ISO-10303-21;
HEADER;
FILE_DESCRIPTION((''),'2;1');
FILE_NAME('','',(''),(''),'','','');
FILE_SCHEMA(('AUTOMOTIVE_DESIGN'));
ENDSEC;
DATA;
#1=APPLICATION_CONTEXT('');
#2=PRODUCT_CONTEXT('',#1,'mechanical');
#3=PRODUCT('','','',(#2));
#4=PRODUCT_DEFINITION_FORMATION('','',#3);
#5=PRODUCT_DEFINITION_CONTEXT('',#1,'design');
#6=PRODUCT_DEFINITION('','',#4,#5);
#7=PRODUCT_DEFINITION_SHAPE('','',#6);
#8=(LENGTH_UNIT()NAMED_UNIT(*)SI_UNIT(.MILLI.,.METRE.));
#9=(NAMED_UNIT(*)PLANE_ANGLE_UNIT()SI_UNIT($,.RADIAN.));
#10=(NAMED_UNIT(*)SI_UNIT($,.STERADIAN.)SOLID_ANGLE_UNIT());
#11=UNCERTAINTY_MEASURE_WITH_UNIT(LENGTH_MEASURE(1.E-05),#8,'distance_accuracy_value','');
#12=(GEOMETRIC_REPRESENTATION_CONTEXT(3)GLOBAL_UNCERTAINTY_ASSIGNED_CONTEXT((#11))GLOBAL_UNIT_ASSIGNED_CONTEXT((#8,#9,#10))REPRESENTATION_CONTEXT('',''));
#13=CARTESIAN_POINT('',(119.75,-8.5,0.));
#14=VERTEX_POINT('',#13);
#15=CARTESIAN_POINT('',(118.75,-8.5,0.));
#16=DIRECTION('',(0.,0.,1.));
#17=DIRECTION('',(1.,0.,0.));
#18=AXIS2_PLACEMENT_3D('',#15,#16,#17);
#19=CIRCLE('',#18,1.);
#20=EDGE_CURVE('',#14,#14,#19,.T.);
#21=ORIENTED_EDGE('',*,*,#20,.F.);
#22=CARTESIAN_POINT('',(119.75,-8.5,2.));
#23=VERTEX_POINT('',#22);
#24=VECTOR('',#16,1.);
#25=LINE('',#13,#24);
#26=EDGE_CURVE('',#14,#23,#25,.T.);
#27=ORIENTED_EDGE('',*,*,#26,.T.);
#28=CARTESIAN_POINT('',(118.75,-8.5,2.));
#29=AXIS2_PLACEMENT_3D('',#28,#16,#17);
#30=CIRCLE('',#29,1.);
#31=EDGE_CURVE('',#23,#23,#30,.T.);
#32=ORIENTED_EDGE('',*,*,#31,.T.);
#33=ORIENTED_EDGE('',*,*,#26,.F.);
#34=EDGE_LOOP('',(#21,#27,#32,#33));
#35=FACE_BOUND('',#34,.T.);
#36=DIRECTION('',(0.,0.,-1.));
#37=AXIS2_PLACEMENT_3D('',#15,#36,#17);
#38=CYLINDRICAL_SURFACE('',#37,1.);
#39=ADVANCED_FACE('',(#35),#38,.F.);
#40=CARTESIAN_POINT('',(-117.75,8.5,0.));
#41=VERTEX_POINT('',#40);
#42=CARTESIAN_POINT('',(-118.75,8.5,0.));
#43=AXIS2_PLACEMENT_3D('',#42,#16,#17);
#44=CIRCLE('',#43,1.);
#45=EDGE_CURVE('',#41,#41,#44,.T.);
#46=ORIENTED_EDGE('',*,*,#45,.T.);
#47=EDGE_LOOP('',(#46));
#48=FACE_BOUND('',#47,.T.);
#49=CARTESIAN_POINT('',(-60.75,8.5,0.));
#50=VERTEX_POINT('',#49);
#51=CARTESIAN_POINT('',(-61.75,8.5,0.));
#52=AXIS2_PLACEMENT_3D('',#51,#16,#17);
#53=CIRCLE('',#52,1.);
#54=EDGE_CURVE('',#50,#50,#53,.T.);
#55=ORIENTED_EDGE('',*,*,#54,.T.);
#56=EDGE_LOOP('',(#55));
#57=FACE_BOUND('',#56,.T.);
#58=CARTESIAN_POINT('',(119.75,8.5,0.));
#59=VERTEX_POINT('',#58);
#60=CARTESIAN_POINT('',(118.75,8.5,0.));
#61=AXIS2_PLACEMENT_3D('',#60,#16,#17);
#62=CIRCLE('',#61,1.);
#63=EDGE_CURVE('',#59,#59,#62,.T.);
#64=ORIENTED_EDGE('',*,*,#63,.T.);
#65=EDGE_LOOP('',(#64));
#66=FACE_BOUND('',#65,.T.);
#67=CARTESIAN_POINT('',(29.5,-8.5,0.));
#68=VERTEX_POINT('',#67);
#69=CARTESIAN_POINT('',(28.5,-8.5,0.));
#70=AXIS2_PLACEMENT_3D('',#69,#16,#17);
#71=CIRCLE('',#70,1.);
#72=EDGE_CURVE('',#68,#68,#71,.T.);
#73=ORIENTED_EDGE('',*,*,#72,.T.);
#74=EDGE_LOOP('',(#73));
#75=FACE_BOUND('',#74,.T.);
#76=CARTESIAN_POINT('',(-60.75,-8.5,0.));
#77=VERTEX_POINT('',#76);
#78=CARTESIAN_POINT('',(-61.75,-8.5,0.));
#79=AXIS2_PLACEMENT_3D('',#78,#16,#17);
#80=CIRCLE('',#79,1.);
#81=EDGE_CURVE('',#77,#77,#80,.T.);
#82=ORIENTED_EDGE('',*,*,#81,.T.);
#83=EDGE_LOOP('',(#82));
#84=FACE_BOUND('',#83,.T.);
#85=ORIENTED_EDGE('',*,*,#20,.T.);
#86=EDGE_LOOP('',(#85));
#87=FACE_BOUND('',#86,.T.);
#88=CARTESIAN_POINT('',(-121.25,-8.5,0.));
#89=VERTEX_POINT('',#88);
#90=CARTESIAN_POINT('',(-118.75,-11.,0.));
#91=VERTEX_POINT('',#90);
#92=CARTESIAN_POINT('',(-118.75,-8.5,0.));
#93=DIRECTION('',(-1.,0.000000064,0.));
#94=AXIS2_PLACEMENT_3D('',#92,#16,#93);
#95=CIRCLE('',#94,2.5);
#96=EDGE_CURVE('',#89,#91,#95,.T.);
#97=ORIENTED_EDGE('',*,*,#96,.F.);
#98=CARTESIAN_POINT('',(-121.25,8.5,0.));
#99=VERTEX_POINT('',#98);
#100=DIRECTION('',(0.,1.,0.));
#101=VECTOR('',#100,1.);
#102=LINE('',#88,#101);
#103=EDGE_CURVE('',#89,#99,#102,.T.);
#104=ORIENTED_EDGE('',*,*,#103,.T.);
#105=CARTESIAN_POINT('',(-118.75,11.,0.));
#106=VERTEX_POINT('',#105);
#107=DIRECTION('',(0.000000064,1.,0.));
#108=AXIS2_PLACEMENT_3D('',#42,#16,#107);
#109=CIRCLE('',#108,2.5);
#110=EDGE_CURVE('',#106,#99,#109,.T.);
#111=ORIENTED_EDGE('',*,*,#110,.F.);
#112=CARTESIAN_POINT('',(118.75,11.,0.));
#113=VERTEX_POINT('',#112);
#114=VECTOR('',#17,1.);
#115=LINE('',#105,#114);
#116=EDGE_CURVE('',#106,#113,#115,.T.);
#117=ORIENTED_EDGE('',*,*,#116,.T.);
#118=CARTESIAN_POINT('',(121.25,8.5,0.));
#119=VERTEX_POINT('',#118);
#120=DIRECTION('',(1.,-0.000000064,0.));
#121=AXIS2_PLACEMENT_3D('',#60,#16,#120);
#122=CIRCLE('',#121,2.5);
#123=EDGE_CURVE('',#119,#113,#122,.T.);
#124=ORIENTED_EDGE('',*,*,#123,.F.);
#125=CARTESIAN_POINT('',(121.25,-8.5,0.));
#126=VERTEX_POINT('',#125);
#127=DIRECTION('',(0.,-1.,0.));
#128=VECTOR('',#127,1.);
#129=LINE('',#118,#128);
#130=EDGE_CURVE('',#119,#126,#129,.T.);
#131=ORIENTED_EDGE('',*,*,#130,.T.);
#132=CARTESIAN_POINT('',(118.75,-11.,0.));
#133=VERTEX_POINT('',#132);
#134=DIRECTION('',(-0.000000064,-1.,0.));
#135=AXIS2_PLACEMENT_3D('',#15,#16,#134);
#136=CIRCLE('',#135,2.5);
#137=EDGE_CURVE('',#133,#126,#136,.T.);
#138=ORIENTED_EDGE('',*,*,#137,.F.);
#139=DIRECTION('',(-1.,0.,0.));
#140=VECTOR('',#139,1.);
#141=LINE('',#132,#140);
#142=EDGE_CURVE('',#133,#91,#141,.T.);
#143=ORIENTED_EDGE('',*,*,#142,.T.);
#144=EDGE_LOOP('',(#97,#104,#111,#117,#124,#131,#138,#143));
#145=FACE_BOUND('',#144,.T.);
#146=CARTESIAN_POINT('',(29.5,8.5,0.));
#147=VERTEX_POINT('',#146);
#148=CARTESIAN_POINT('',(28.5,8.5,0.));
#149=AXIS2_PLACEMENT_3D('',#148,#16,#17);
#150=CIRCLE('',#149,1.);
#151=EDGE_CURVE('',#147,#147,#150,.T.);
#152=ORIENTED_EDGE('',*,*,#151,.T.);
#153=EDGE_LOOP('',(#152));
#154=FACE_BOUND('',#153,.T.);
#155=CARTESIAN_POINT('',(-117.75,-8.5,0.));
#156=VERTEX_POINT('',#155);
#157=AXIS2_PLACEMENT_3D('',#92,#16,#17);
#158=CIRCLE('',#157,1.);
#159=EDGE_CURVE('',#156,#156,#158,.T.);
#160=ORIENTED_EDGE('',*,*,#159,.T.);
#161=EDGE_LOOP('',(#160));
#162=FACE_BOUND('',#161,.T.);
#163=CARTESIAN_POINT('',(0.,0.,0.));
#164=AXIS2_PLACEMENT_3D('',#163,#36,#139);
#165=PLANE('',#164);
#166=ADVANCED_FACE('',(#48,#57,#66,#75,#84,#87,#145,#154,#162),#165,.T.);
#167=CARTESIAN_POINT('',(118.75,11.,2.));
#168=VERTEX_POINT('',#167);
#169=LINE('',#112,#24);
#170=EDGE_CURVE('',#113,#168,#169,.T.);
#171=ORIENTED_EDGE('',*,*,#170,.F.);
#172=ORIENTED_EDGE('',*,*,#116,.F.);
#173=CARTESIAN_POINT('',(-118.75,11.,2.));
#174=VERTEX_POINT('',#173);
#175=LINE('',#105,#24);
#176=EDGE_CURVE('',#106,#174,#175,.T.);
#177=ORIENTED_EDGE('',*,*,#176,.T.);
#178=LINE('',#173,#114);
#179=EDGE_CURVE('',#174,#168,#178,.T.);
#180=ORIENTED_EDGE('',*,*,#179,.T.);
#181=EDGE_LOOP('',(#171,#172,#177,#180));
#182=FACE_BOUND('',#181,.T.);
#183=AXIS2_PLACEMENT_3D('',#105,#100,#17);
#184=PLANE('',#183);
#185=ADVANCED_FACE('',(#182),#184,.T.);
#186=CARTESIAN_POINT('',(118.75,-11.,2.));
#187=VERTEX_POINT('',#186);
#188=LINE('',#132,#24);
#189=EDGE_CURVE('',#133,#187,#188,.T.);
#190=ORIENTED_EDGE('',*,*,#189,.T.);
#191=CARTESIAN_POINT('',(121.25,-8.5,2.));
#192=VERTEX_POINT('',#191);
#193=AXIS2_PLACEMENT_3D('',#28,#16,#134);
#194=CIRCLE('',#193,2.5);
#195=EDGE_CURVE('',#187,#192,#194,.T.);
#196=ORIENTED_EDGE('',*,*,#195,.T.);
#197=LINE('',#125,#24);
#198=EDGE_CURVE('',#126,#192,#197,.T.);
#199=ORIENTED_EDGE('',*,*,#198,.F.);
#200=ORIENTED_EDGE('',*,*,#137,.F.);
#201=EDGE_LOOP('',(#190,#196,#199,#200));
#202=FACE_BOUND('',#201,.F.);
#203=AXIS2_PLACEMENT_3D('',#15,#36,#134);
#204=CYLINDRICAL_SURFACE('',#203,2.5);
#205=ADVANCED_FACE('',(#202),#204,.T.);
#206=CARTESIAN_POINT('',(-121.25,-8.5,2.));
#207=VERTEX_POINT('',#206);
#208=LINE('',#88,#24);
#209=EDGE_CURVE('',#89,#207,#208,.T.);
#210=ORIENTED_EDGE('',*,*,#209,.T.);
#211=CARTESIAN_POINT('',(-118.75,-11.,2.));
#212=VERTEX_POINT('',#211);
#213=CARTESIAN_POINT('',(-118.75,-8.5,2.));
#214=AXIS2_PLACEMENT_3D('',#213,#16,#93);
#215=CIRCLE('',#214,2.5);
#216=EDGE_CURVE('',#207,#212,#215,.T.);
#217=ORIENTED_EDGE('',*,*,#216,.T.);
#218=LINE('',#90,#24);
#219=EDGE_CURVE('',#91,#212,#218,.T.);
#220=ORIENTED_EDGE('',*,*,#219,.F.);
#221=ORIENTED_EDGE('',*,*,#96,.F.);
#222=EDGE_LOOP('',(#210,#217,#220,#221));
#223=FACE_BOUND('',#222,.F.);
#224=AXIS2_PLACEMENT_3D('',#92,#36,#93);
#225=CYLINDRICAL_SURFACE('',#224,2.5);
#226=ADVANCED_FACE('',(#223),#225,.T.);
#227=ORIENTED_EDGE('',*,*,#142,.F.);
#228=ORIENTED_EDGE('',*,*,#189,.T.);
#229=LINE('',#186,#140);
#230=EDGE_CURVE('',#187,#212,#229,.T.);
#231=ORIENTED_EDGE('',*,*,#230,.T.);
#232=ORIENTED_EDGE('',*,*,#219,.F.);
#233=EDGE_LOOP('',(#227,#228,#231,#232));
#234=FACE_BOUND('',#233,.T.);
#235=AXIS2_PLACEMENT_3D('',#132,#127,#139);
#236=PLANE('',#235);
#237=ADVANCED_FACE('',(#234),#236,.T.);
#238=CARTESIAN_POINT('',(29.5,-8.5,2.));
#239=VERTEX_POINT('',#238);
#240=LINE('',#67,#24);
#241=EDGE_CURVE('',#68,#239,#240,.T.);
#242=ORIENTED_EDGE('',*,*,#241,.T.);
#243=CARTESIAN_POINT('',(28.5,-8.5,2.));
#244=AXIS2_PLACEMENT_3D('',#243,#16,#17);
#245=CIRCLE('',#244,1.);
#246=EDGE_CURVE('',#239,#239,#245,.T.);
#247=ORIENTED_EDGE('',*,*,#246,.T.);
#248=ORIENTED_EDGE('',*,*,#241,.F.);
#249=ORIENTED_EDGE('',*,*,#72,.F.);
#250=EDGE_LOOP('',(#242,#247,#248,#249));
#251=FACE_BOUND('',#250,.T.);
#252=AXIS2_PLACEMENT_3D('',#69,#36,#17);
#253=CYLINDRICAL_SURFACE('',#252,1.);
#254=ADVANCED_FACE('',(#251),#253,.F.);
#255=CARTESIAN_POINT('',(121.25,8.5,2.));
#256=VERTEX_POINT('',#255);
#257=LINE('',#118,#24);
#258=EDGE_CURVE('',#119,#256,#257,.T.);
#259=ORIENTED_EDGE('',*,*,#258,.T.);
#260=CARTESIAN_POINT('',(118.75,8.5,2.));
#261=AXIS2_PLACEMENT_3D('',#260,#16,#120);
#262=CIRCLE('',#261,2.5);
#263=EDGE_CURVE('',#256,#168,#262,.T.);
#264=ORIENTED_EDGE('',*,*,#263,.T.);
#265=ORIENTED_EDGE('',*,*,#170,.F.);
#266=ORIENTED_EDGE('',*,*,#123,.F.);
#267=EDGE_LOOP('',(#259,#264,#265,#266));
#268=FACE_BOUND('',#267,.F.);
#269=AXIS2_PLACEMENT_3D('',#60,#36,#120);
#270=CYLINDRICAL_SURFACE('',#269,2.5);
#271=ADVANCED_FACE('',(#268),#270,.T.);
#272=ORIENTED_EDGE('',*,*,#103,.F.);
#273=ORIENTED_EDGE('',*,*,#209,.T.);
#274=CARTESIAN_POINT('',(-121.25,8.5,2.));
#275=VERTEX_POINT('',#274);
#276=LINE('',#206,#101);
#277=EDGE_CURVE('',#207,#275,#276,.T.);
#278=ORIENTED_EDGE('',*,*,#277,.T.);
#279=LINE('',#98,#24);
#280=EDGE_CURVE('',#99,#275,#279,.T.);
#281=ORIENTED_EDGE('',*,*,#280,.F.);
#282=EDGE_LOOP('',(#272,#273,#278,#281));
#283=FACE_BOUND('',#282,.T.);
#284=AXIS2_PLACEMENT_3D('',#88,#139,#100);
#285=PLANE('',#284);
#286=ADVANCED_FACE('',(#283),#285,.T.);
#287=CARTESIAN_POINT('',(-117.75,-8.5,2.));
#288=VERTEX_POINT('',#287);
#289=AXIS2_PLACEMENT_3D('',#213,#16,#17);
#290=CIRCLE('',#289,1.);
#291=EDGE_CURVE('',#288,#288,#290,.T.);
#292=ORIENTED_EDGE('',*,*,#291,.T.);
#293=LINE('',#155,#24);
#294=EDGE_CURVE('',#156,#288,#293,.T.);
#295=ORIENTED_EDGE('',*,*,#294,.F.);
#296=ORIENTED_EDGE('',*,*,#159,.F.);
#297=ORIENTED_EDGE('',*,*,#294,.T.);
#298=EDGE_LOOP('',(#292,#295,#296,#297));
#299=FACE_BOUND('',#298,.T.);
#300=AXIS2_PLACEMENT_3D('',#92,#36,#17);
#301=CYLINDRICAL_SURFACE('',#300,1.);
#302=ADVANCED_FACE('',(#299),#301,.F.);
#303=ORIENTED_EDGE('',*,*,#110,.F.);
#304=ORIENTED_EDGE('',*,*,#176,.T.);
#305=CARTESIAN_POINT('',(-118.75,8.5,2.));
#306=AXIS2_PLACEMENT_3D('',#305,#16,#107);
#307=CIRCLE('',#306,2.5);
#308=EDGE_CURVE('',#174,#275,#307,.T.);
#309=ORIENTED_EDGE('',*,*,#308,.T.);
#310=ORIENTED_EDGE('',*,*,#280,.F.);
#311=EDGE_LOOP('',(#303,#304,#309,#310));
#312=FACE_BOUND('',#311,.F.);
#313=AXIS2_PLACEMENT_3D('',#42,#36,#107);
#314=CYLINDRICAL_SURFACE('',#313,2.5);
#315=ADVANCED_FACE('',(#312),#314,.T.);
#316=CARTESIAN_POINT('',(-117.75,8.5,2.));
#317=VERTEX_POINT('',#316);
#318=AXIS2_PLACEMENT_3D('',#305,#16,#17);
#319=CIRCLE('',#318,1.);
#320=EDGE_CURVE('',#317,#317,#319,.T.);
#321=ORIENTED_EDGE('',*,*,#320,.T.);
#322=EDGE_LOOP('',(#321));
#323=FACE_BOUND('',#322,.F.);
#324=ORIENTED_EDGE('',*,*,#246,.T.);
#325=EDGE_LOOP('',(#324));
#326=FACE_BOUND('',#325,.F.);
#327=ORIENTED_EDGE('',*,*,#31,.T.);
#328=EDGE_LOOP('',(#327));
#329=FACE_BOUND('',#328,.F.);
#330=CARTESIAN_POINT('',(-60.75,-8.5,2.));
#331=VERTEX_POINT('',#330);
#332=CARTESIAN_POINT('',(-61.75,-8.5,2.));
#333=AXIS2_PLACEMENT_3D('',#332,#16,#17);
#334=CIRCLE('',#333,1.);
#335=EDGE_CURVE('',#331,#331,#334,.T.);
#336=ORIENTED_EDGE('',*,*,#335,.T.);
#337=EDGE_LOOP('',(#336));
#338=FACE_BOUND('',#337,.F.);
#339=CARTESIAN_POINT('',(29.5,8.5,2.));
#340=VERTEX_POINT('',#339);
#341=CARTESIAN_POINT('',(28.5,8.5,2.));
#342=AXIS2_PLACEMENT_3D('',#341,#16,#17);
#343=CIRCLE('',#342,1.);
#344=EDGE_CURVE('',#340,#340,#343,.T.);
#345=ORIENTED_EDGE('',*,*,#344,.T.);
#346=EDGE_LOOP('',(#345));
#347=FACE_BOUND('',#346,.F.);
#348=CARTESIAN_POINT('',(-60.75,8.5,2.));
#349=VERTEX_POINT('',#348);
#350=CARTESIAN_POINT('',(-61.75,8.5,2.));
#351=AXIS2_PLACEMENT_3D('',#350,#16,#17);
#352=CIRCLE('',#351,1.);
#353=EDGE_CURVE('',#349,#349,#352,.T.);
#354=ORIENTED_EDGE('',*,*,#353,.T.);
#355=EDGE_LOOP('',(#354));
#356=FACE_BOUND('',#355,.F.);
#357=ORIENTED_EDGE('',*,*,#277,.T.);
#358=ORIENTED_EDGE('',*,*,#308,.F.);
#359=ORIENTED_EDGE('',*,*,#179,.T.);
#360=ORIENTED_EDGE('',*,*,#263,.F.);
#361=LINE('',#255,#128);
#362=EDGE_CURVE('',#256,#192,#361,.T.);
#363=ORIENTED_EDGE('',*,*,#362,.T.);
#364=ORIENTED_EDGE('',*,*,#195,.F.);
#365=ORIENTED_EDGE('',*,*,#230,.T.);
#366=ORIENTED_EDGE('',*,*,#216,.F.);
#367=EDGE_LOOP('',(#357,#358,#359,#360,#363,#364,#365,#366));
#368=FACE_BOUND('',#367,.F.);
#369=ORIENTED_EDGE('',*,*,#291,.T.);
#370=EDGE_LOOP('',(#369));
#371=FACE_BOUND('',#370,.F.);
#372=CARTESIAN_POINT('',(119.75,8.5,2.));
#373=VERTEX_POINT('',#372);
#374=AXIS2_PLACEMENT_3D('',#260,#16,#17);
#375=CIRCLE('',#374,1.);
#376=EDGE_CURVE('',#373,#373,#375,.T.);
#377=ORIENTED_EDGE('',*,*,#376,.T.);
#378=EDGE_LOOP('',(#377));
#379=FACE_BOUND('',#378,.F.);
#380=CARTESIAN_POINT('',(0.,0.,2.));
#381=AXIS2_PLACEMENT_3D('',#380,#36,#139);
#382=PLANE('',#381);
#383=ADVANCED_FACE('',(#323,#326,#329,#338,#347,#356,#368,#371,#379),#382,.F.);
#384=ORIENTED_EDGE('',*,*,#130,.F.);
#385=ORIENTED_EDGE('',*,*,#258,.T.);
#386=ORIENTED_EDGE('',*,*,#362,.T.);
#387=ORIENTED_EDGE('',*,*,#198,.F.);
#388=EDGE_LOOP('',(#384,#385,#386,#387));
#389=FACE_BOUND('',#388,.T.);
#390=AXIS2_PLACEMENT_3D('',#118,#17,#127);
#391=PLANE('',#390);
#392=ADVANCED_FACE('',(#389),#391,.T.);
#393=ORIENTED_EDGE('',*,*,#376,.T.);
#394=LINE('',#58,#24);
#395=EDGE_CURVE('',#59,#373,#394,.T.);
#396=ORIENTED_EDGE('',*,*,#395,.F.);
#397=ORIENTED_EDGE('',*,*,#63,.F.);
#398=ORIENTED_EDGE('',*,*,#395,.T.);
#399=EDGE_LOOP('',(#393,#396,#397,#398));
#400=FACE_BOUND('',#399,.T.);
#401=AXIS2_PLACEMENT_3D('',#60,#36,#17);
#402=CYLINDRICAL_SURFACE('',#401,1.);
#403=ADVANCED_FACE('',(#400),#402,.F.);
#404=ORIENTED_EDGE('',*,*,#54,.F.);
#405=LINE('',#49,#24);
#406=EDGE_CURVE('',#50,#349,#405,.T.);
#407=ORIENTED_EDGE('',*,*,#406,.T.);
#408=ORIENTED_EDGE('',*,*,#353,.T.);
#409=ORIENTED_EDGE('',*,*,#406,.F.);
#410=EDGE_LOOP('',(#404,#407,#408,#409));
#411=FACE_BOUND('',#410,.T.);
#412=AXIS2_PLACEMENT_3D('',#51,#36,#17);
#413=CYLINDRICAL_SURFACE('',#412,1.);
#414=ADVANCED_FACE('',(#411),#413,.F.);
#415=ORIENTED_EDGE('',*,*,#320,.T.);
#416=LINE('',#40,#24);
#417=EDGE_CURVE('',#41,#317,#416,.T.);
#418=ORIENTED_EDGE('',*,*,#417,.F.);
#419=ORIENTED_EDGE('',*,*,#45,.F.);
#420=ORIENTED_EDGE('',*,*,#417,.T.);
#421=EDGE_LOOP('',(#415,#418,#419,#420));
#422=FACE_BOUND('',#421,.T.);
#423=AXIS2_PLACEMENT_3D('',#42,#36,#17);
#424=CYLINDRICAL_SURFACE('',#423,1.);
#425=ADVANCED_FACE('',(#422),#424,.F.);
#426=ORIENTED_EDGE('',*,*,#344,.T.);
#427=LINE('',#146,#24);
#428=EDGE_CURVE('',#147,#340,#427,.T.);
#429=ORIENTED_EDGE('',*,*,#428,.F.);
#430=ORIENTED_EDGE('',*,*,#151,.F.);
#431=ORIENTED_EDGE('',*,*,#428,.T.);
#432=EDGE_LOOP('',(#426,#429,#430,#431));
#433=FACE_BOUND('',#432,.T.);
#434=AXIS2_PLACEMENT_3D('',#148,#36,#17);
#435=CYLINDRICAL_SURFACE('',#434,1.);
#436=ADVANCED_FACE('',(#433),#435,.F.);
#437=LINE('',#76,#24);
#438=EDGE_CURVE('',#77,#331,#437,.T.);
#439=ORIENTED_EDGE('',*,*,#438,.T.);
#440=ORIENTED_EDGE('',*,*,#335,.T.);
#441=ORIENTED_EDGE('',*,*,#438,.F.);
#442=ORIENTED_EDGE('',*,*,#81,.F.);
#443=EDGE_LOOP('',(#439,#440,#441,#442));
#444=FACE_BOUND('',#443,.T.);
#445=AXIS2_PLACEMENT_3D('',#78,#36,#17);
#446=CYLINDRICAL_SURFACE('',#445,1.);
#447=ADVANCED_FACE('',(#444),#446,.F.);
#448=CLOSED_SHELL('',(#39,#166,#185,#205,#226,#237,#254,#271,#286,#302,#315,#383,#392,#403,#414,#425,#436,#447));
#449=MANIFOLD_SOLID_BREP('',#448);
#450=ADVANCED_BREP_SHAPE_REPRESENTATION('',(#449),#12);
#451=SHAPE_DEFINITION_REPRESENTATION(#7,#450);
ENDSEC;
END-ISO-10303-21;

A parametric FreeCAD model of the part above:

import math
import FreeCAD as App
import Part
import Sketcher
from FreeCAD import Vector

doc = App.newDocument("Part")
body = doc.addObject("PartDesign::Body", "Body")

# Sketch on XY plane
sketch1 = body.newObject("Sketcher::SketchObject", "Sketch")
sketch1.AttachmentSupport = (doc.getObject("XY_Plane"), [""])
sketch1.MapMode = "FlatFace"
sketch1.addGeometry(Part.LineSegment(Vector(-121.25, 8.5, 0), Vector(-121.25, -8.5, 0)), False)
sketch1.addGeometry(Part.ArcOfCircle(Part.Circle(Vector(-118.75, -8.5, 0), Vector(0, 0, 1), 2.5), math.radians(179.999996), math.radians(270.000004)), False)
sketch1.addGeometry(Part.LineSegment(Vector(-118.75, -11, 0), Vector(118.75, -11, 0)), False)
sketch1.addGeometry(Part.ArcOfCircle(Part.Circle(Vector(118.75, -8.5, 0), Vector(0, 0, 1), 2.5), math.radians(-90.000004), math.radians(0.000004)), False)
sketch1.addGeometry(Part.LineSegment(Vector(121.25, -8.5, 0), Vector(121.25, 8.5, 0)), False)
sketch1.addGeometry(Part.ArcOfCircle(Part.Circle(Vector(118.75, 8.5, 0), Vector(0, 0, 1), 2.5), math.radians(-0.000004), math.radians(90.000004)), False)
sketch1.addGeometry(Part.LineSegment(Vector(118.75, 11, 0), Vector(-118.75, 11, 0)), False)
sketch1.addGeometry(Part.ArcOfCircle(Part.Circle(Vector(-118.75, 8.5, 0), Vector(0, 0, 1), 2.5), math.radians(89.999996), math.radians(180.000004)), False)
sketch1.addGeometry(Part.Circle(Vector(118.75, -8.5, 0), Vector(0, 0, 1), 1), False)
sketch1.addGeometry(Part.Circle(Vector(28.5, -8.5, 0), Vector(0, 0, 1), 1), False)
sketch1.addGeometry(Part.Circle(Vector(-61.75, -8.5, 0), Vector(0, 0, 1), 1), False)
sketch1.addGeometry(Part.Circle(Vector(-118.75, -8.5, 0), Vector(0, 0, 1), 1), False)
sketch1.addGeometry(Part.Circle(Vector(118.75, 8.5, 0), Vector(0, 0, 1), 1), False)
sketch1.addGeometry(Part.Circle(Vector(28.5, 8.5, 0), Vector(0, 0, 1), 1), False)
sketch1.addGeometry(Part.Circle(Vector(-61.75, 8.5, 0), Vector(0, 0, 1), 1), False)
sketch1.addGeometry(Part.Circle(Vector(-118.75, 8.5, 0), Vector(0, 0, 1), 1), False)
sketch1.addConstraint(Sketcher.Constraint("Tangent", 0, 2, 1, 1))
sketch1.addConstraint(Sketcher.Constraint("Tangent", 1, 2, 2, 1))
sketch1.addConstraint(Sketcher.Constraint("Tangent", 2, 2, 3, 1))
sketch1.addConstraint(Sketcher.Constraint("Tangent", 3, 2, 4, 1))
sketch1.addConstraint(Sketcher.Constraint("Tangent", 4, 2, 5, 1))
sketch1.addConstraint(Sketcher.Constraint("Tangent", 5, 2, 6, 1))
sketch1.addConstraint(Sketcher.Constraint("Tangent", 6, 2, 7, 1))
sketch1.addConstraint(Sketcher.Constraint("Tangent", 7, 2, 0, 1))
sketch1.addConstraint(Sketcher.Constraint("Vertical", 0))
sketch1.addConstraint(Sketcher.Constraint("Horizontal", 2))
sketch1.addConstraint(Sketcher.Constraint("Vertical", 4))
sketch1.addConstraint(Sketcher.Constraint("Horizontal", 6))
sketch1.addConstraint(Sketcher.Constraint("Coincident", 8, 3, 3, 3))
sketch1.addConstraint(Sketcher.Constraint("Coincident", 11, 3, 1, 3))
sketch1.addConstraint(Sketcher.Constraint("Coincident", 12, 3, 5, 3))
sketch1.addConstraint(Sketcher.Constraint("Coincident", 15, 3, 7, 3))
sketch1.addConstraint(Sketcher.Constraint("Equal", 1, 3))
sketch1.addConstraint(Sketcher.Constraint("Equal", 3, 5))
sketch1.addConstraint(Sketcher.Constraint("Equal", 5, 7))
sketch1.addConstraint(Sketcher.Constraint("Equal", 8, 9))
sketch1.addConstraint(Sketcher.Constraint("Equal", 9, 10))
sketch1.addConstraint(Sketcher.Constraint("Equal", 10, 11))
sketch1.addConstraint(Sketcher.Constraint("Equal", 11, 12))
sketch1.addConstraint(Sketcher.Constraint("Equal", 12, 13))
sketch1.addConstraint(Sketcher.Constraint("Equal", 13, 14))
sketch1.addConstraint(Sketcher.Constraint("Equal", 14, 15))
sketch1.addConstraint(Sketcher.Constraint("Symmetric", 1, 3, 5, 3, -1, 1))
sketch1.addConstraint(Sketcher.Constraint("Symmetric", 9, 3, 13, 3, -1))
sketch1.addConstraint(Sketcher.Constraint("Symmetric", 10, 3, 14, 3, -1))
sketch1.addConstraint(Sketcher.Constraint("Horizontal", 8, 3, 9, 3))
sketch1.addConstraint(Sketcher.Constraint("Horizontal", 9, 3, 10, 3))
sketch1.addConstraint(Sketcher.Constraint("Diameter", 8, 2.0))
sketch1.addConstraint(Sketcher.Constraint("Radius", 1, 2.5))
sketch1.addConstraint(Sketcher.Constraint("DistanceY", 0, 2, 0, 1, 17.0))
sketch1.addConstraint(Sketcher.Constraint("DistanceX", 2, 1, 2, 2, 237.5))
sketch1.addConstraint(Sketcher.Constraint("DistanceX", 1, 3, 10, 3, 57.0))
sketch1.addConstraint(Sketcher.Constraint("DistanceX", -1, 1, 9, 3, 28.5))
pad1 = body.newObject("PartDesign::Pad", "Pad")
pad1.Profile = sketch1
pad1.Length = 2

doc.recompute()
